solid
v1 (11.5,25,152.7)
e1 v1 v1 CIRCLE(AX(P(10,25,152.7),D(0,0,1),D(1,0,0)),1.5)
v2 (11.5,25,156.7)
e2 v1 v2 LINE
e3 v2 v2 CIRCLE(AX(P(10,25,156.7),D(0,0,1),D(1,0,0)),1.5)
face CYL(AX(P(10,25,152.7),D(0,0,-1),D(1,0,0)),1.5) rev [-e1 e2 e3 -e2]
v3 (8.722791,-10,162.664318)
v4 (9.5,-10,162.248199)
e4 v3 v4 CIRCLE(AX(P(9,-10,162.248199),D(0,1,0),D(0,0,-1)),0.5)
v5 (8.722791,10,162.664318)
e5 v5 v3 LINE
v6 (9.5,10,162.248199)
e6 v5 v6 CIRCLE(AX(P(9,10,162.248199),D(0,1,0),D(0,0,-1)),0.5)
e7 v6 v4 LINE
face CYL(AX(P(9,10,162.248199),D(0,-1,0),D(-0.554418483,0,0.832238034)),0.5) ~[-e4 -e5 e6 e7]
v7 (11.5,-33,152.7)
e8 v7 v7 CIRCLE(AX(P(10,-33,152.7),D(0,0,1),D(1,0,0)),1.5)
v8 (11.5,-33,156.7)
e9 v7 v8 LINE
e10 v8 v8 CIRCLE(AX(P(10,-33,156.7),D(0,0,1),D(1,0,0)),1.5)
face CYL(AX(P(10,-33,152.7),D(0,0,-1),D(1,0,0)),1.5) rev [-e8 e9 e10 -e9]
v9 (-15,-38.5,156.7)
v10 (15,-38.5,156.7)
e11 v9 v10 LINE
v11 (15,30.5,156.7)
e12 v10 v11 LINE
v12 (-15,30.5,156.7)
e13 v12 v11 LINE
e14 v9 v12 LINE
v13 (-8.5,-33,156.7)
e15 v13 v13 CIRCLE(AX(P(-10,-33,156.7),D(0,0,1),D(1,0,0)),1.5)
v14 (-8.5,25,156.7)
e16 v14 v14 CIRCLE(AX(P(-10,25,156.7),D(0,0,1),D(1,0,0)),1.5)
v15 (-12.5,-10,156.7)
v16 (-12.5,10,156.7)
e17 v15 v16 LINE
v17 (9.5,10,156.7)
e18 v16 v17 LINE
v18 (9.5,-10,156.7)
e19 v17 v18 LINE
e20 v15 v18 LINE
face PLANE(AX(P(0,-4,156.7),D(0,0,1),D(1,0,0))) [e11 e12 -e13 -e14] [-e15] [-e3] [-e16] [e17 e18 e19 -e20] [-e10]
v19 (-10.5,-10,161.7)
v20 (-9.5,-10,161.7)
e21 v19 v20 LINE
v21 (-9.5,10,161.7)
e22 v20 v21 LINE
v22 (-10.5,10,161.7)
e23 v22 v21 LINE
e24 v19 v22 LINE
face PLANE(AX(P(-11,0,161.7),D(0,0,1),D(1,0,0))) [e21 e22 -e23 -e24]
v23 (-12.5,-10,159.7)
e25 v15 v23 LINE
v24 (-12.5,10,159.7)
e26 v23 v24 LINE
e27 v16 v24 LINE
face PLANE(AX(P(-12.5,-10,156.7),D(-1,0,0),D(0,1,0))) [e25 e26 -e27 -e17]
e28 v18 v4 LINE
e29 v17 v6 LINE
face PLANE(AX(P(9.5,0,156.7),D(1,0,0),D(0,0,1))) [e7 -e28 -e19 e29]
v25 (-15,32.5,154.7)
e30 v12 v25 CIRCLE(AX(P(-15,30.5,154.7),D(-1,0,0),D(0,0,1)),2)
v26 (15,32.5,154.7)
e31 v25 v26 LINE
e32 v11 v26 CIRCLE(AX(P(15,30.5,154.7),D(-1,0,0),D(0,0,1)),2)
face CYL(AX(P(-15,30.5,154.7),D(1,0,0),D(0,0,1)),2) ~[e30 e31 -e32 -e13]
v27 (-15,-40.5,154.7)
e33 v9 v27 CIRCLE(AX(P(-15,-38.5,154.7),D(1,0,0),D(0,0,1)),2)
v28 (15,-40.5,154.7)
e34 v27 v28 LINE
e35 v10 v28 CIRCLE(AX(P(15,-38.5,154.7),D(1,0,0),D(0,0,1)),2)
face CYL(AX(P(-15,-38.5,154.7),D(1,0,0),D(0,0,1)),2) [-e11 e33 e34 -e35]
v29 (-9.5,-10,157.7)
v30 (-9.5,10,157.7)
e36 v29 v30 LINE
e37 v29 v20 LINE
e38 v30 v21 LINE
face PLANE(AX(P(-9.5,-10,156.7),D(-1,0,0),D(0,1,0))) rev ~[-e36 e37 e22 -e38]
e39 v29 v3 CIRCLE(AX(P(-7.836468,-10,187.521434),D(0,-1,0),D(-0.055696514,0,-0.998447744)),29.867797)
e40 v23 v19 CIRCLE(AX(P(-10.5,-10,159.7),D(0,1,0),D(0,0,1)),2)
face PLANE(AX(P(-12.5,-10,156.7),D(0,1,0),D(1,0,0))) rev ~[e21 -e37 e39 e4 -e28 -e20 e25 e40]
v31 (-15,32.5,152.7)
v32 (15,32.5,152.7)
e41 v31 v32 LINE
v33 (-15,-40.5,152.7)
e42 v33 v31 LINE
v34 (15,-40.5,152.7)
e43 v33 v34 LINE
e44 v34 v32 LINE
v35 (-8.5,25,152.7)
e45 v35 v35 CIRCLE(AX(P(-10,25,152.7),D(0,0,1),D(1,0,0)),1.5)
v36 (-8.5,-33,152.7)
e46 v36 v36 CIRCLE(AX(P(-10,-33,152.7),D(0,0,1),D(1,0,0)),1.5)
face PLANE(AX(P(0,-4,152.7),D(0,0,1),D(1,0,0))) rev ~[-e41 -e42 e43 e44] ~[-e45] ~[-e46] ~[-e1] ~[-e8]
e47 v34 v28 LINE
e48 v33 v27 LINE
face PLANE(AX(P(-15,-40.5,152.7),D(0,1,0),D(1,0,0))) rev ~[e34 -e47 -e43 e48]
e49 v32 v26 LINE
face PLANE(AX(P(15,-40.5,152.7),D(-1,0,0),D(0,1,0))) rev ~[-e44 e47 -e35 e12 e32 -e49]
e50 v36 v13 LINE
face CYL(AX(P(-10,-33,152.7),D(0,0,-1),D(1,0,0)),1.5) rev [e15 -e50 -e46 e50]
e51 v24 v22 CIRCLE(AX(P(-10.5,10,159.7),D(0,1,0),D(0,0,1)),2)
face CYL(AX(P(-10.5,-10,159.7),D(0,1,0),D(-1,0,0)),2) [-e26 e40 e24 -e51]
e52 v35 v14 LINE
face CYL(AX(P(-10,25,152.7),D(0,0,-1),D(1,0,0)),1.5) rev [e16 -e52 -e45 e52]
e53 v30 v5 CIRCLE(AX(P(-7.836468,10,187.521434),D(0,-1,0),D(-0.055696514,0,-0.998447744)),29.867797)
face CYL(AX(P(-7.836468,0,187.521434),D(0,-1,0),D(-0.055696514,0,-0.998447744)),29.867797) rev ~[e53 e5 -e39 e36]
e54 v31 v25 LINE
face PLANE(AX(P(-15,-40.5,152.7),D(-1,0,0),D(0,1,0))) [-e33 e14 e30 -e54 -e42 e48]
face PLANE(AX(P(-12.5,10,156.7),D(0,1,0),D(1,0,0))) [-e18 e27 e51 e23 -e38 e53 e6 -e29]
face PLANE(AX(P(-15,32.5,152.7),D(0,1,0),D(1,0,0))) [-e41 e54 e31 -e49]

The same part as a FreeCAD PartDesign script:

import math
import FreeCAD as App
import Part
import Sketcher
from FreeCAD import Vector
Q = App.Units.Quantity


def edges_at(feature, points):
    """Names of the edges that pass closest to the given points."""
    edges = feature.Shape.Edges
    near = lambda p: min(range(len(edges)), key=lambda i: edges[i].distToShape(Part.Vertex(*p))[0])
    return sorted({f"Edge{near(p) + 1}" for p in points})

doc = App.newDocument("Part")
body = doc.addObject("PartDesign::Body", "Body")

sketch1 = body.newObject("Sketcher::SketchObject", "Sketch")
sketch1.AttachmentSupport = (doc.getObject("XY_Plane"), [""])
sketch1.MapMode = "FlatFace"
sketch1.AttachmentOffset = App.Placement(Vector(0, 0, 152.7), App.Rotation())
sketch1.addGeometry(Part.Circle(Vector(-10, 25, 0), Vector(0, 0, 1), 1.5), False)
sketch1.addConstraint(Sketcher.Constraint("Diameter", 0, Q("3 mm")))
sketch1.addConstraint(Sketcher.Constraint("DistanceX", 0, 3, -1, 1, Q("10 mm")))
sketch1.addConstraint(Sketcher.Constraint("DistanceY", -1, 1, 0, 3, Q("25 mm")))
pad1 = body.newObject("PartDesign::Pad", "Pad")
pad1.Profile = sketch1
pad1.Length = 4
body2 = doc.addObject("PartDesign::Body", "Body001")

sketch2 = body2.newObject("Sketcher::SketchObject", "Sketch001")
sketch2.AttachmentSupport = (doc.getObject("XY_Plane001"), [""])
sketch2.MapMode = "FlatFace"
sketch2.AttachmentOffset = App.Placement(Vector(0, 0, 152.7), App.Rotation())
sketch2.addGeometry(Part.Circle(Vector(-10, -33, 0), Vector(0, 0, 1), 1.5), False)
sketch2.addConstraint(Sketcher.Constraint("Diameter", 0, Q("3 mm")))
sketch2.addConstraint(Sketcher.Constraint("DistanceX", 0, 3, -1, 1, Q("10 mm")))
sketch2.addConstraint(Sketcher.Constraint("DistanceY", 0, 3, -1, 1, Q("33 mm")))
pad2 = body2.newObject("PartDesign::Pad", "Pad001")
pad2.Profile = sketch2
pad2.Length = 4
body3 = doc.addObject("PartDesign::Body", "Body002")

sketch3 = body3.newObject("Sketcher::SketchObject", "Sketch002")
sketch3.AttachmentSupport = (doc.getObject("XY_Plane002"), [""])
sketch3.MapMode = "FlatFace"
sketch3.AttachmentOffset = App.Placement(Vector(0, 0, 152.7), App.Rotation())
sketch3.addGeometry(Part.Circle(Vector(10, 25, 0), Vector(0, 0, 1), 1.5), False)
sketch3.addConstraint(Sketcher.Constraint("Diameter", 0, Q("3 mm")))
sketch3.addConstraint(Sketcher.Constraint("DistanceX", -1, 1, 0, 3, Q("10 mm")))
sketch3.addConstraint(Sketcher.Constraint("DistanceY", -1, 1, 0, 3, Q("25 mm")))
pad3 = body3.newObject("PartDesign::Pad", "Pad002")
pad3.Profile = sketch3
pad3.Length = 4
body4 = doc.addObject("PartDesign::Body", "Body003")
body4.AllowCompound = True

sketch4 = body4.newObject("Sketcher::SketchObject", "Sketch003")
sketch4.AttachmentSupport = (doc.getObject("XY_Plane003"), [""])
sketch4.MapMode = "FlatFace"
sketch4.AttachmentOffset = App.Placement(Vector(0, 0, 152.7), App.Rotation())
sketch4.addGeometry(Part.Circle(Vector(10, -33, 0), Vector(0, 0, 1), 1.5), False)
sketch4.addConstraint(Sketcher.Constraint("Diameter", 0, Q("3 mm")))
sketch4.addConstraint(Sketcher.Constraint("DistanceX", -1, 1, 0, 3, Q("10 mm")))
sketch4.addConstraint(Sketcher.Constraint("DistanceY", 0, 3, -1, 1, Q("33 mm")))
pad4 = body4.newObject("PartDesign::Pad", "Pad003")
pad4.Profile = sketch4
pad4.Length = 4
doc.recompute()

boolean = body4.newObject("PartDesign::Boolean", "Boolean")
boolean.Type = "Fuse"
boolean.addObjects([body])
doc.recompute()

boolean2 = body4.newObject("PartDesign::Boolean", "Boolean001")
boolean2.Type = "Fuse"
boolean2.addObjects([body2])
doc.recompute()

boolean3 = body4.newObject("PartDesign::Boolean", "Boolean002")
boolean3.Type = "Fuse"
boolean3.addObjects([body3])
body5 = doc.addObject("PartDesign::Body", "Body004")

sketch5 = body5.newObject("Sketcher::SketchObject", "Sketch004")
sketch5.AttachmentSupport = (doc.getObject("XZ_Plane004"), [""])
sketch5.MapMode = "FlatFace"
sketch5.addGeometry(Part.LineSegment(Vector(-9.5, 0, 0), Vector(9.5, 0, 0)), False)
sketch5.addGeometry(Part.LineSegment(Vector(9.5, 0, 0), Vector(9.5, 6.5, 0)), False)
sketch5.addGeometry(Part.ArcOfCircle(Part.Circle(Vector(-7.836468, 30.821434, 0), Vector(0, 0, 1), 29.867797), math.radians(-93.192827), math.radians(-54.518495)), False)
sketch5.addGeometry(Part.LineSegment(Vector(-9.5, 1, 0), Vector(-9.5, 0, 0)), False)
sketch5.addConstraint(Sketcher.Constraint("Coincident", 0, 2, 1, 1))
sketch5.addConstraint(Sketcher.Constraint("Coincident", 1, 2, 2, 2))
sketch5.addConstraint(Sketcher.Constraint("Coincident", 2, 1, 3, 1))
sketch5.addConstraint(Sketcher.Constraint("Coincident", 3, 2, 0, 1))
sketch5.addConstraint(Sketcher.Constraint("Horizontal", 0))
sketch5.addConstraint(Sketcher.Constraint("Vertical", 1))
sketch5.addConstraint(Sketcher.Constraint("Vertical", 3))
sketch5.addConstraint(Sketcher.Constraint("Symmetric", 0, 2, 3, 2, -1, 1))
sketch5.addConstraint(Sketcher.Constraint("DistanceX", 0, 1, 0, 2, Q("19 mm")))
sketch5.addConstraint(Sketcher.Constraint("DistanceY", 3, 2, 3, 1, Q("1 mm")))
sketch5.addConstraint(Sketcher.Constraint("DistanceY", 1, 1, 1, 2, Q("6.5 mm")))
sketch5.addConstraint(Sketcher.Constraint("Radius", 2, Q("29.867797 mm")))
pad5 = body5.newObject("PartDesign::Pad", "Pad004")
pad5.Profile = sketch5
pad5.Length = 20
pad5.Midplane = True
doc.recompute()

fillet = body5.newObject("PartDesign::Fillet", "Fillet")
fillet.Base = (pad5, edges_at(pad5, [(9.5, 0, 6.5)]))
fillet.Radius = 0.5
body6 = doc.addObject("PartDesign::Body", "Body005")
doc.recompute()

body5.Placement = App.Placement(Vector(0, 0, 156.7), App.Rotation(Vector(0, 0, 1), 0))
boolean4 = body6.newObject("PartDesign::Boolean", "Boolean003")
boolean4.Type = "Fuse"
boolean4.addObjects([body5])
body7 = doc.addObject("PartDesign::Body", "Body006")

sketch6 = body7.newObject("Sketcher::SketchObject", "Sketch005")
sketch6.AttachmentSupport = (doc.getObject("XY_Plane006"), [""])
sketch6.MapMode = "FlatFace"
sketch6.AttachmentOffset = App.Placement(Vector(0, 0, 156.7), App.Rotation())
sketch6.addGeometry(Part.LineSegment(Vector(-12.5, 10, 0), Vector(-12.5, -10, 0)), False)
sketch6.addGeometry(Part.LineSegment(Vector(-12.5, -10, 0), Vector(-9.5, -10, 0)), False)
sketch6.addGeometry(Part.LineSegment(Vector(-9.5, -10, 0), Vector(-9.5, 10, 0)), False)
sketch6.addGeometry(Part.LineSegment(Vector(-9.5, 10, 0), Vector(-12.5, 10, 0)), False)
sketch6.addConstraint(Sketcher.Constraint("Coincident", 0, 2, 1, 1))
sketch6.addConstraint(Sketcher.Constraint("Coincident", 1, 2, 2, 1))
sketch6.addConstraint(Sketcher.Constraint("Coincident", 2, 2, 3, 1))
sketch6.addConstraint(Sketcher.Constraint("Coincident", 3, 2, 0, 1))
sketch6.addConstraint(Sketcher.Constraint("Vertical", 0))
sketch6.addConstraint(Sketcher.Constraint("Horizontal", 1))
sketch6.addConstraint(Sketcher.Constraint("Vertical", 2))
sketch6.addConstraint(Sketcher.Constraint("Horizontal", 3))
sketch6.addConstraint(Sketcher.Constraint("DistanceX", 1, 1, 1, 2, Q("3 mm")))
sketch6.addConstraint(Sketcher.Constraint("DistanceY", 0, 2, 0, 1, Q("20 mm")))
sketch6.addConstraint(Sketcher.Constraint("DistanceY", 0, 2, -1, 1, Q("10 mm")))
sketch6.addConstraint(Sketcher.Constraint("DistanceX", 0, 2, -1, 1, Q("12.5 mm")))
pad6 = body7.newObject("PartDesign::Pad", "Pad005")
pad6.Profile = sketch6
pad6.Length = 5
doc.recompute()

fillet2 = body7.newObject("PartDesign::Fillet", "Fillet001")
fillet2.Base = (pad6, edges_at(pad6, [(-12.5, 0, 161.7)]))
fillet2.Radius = 2
body8 = doc.addObject("PartDesign::Body", "Body007")

sketch7 = body8.newObject("Sketcher::SketchObject", "Sketch006")
sketch7.AttachmentSupport = (doc.getObject("XY_Plane007"), [""])
sketch7.MapMode = "FlatFace"
sketch7.AttachmentOffset = App.Placement(Vector(0, 0, 152.7), App.Rotation())
sketch7.addGeometry(Part.LineSegment(Vector(-15, 32.5, 0), Vector(-15, -40.5, 0)), False)
sketch7.addGeometry(Part.LineSegment(Vector(-15, -40.5, 0), Vector(15, -40.5, 0)), False)
sketch7.addGeometry(Part.LineSegment(Vector(15, -40.5, 0), Vector(15, 32.5, 0)), False)
sketch7.addGeometry(Part.LineSegment(Vector(15, 32.5, 0), Vector(-15, 32.5, 0)), False)
sketch7.addConstraint(Sketcher.Constraint("Coincident", 0, 2, 1, 1))
sketch7.addConstraint(Sketcher.Constraint("Coincident", 1, 2, 2, 1))
sketch7.addConstraint(Sketcher.Constraint("Coincident", 2, 2, 3, 1))
sketch7.addConstraint(Sketcher.Constraint("Coincident", 3, 2, 0, 1))
sketch7.addConstraint(Sketcher.Constraint("Vertical", 0))
sketch7.addConstraint(Sketcher.Constraint("Horizontal", 1))
sketch7.addConstraint(Sketcher.Constraint("Vertical", 2))
sketch7.addConstraint(Sketcher.Constraint("Horizontal", 3))
sketch7.addConstraint(Sketcher.Constraint("DistanceX", 1, 1, 1, 2, Q("30 mm")))
sketch7.addConstraint(Sketcher.Constraint("DistanceY", 0, 2, 0, 1, Q("73 mm")))
sketch7.addConstraint(Sketcher.Constraint("DistanceX", 0, 2, -1, 1, Q("15 mm")))
sketch7.addConstraint(Sketcher.Constraint("DistanceY", 0, 2, -1, 1, Q("40.5 mm")))
pad7 = body8.newObject("PartDesign::Pad", "Pad006")
pad7.Profile = sketch7
pad7.Length = 4
doc.recompute()

boolean5 = body8.newObject("PartDesign::Boolean", "Boolean004")
boolean5.Type = "Fuse"
boolean5.addObjects([body6])
doc.recompute()

boolean6 = body8.newObject("PartDesign::Boolean", "Boolean005")
boolean6.Type = "Fuse"
boolean6.addObjects([body7])
doc.recompute()

fillet3 = body8.newObject("PartDesign::Fillet", "Fillet002")
fillet3.Base = (boolean6, edges_at(boolean6, [(0, -40.5, 156.7), (0, 32.5, 156.7)]))
fillet3.Radius = 2
doc.recompute()

boolean7 = body8.newObject("PartDesign::Boolean", "Boolean006")
boolean7.Type = "Cut"
boolean7.addObjects([body4])

doc.recompute()
